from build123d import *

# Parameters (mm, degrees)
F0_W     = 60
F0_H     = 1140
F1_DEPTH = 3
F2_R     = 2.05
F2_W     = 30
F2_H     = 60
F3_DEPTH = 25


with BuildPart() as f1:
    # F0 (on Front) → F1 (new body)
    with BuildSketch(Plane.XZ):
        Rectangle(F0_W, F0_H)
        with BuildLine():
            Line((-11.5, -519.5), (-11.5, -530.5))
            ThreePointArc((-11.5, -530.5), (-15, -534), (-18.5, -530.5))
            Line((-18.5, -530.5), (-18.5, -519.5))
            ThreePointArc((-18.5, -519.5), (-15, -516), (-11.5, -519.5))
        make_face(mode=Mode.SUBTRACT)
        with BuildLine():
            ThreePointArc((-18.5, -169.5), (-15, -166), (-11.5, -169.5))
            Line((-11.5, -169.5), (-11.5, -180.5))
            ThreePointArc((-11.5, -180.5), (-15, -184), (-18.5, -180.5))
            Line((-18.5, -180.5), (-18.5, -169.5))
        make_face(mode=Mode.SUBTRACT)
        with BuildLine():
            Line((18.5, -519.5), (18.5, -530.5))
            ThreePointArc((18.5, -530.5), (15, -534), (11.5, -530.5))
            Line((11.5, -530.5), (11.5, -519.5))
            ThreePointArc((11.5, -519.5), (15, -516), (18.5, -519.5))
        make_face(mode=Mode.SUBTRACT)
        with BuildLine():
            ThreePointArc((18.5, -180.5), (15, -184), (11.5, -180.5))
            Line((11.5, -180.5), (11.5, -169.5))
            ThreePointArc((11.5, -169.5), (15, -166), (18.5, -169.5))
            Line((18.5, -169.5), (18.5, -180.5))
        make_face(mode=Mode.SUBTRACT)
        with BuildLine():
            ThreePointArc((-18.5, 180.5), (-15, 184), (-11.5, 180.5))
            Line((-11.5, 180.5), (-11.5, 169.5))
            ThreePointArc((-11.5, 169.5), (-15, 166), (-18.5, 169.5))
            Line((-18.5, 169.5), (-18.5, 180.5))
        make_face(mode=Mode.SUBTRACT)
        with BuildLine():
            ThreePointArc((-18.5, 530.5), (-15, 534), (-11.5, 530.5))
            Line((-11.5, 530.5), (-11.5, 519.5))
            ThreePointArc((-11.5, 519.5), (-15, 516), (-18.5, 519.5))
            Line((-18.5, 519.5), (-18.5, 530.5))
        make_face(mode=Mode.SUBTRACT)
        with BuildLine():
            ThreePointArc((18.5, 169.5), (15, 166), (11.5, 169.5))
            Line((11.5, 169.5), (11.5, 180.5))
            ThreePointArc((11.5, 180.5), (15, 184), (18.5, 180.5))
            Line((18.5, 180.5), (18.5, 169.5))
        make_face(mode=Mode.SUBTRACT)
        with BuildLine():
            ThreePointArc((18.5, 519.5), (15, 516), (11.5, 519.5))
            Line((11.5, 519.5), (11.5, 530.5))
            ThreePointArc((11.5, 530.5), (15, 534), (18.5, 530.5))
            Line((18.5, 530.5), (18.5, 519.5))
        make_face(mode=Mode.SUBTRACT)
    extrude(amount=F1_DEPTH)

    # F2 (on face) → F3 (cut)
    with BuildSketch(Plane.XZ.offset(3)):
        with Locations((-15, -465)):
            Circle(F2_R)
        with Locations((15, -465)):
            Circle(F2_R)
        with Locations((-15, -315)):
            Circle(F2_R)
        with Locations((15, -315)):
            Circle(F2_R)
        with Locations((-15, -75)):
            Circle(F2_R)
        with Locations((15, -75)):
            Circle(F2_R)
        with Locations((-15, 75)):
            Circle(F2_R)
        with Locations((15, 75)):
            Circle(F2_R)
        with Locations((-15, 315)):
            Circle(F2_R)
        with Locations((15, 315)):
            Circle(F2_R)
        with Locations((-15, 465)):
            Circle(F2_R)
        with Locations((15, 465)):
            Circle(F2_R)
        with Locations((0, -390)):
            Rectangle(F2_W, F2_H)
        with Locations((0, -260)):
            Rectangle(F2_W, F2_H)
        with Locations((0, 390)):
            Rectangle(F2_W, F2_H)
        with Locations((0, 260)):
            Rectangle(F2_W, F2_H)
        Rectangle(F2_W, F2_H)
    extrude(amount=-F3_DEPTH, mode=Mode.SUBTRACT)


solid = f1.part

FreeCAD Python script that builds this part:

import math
import FreeCAD as App
import Part
import Sketcher
from FreeCAD import Vector

doc = App.newDocument("Part")
body = doc.addObject("PartDesign::Body", "Body")

# Sketch on XZ plane
sketch1 = body.newObject("Sketcher::SketchObject", "Sketch")
sketch1.AttachmentSupport = (doc.getObject("XZ_Plane"), [""])
sketch1.MapMode = "FlatFace"
sketch1.addGeometry(Part.LineSegment(Vector(-30, 570, 0), Vector(-30, -570, 0)), False)
sketch1.addGeometry(Part.LineSegment(Vector(-30, -570, 0), Vector(30, -570, 0)), False)
sketch1.addGeometry(Part.LineSegment(Vector(30, -570, 0), Vector(30, 570, 0)), False)
sketch1.addGeometry(Part.LineSegment(Vector(30, 570, 0), Vector(-30, 570, 0)), False)
sketch1.addGeometry(Part.ArcOfCircle(Part.Circle(Vector(-15, -519.5, 0), Vector(0, 0, 1), 3.5), math.radians(0), math.radians(180)), False)
sketch1.addGeometry(Part.LineSegment(Vector(-11.5, -519.5, 0), Vector(-11.5, -530.5, 0)), False)
sketch1.addGeometry(Part.ArcOfCircle(Part.Circle(Vector(-15, -530.5, 0), Vector(0, 0, 1), 3.5), math.radians(180), math.radians(360)), False)
sketch1.addGeometry(Part.LineSegment(Vector(-18.5, -530.5, 0), Vector(-18.5, -519.5, 0)), False)
sketch1.addGeometry(Part.LineSegment(Vector(-18.5, -180.5, 0), Vector(-18.5, -169.5, 0)), False)
sketch1.addGeometry(Part.ArcOfCircle(Part.Circle(Vector(-15, -169.5, 0), Vector(0, 0, 1), 3.5), math.radians(0), math.radians(180)), False)
sketch1.addGeometry(Part.LineSegment(Vector(-11.5, -169.5, 0), Vector(-11.5, -180.5, 0)), False)
sketch1.addGeometry(Part.ArcOfCircle(Part.Circle(Vector(-15, -180.5, 0), Vector(0, 0, 1), 3.5), math.radians(180), math.radians(360)), False)
sketch1.addGeometry(Part.ArcOfCircle(Part.Circle(Vector(15, -519.5, 0), Vector(0, 0, 1), 3.5), math.radians(0), math.radians(180)), False)
sketch1.addGeometry(Part.LineSegment(Vector(18.5, -519.5, 0), Vector(18.5, -530.5, 0)), False)
sketch1.addGeometry(Part.ArcOfCircle(Part.Circle(Vector(15, -530.5, 0), Vector(0, 0, 1), 3.5), math.radians(180), math.radians(360)), False)
sketch1.addGeometry(Part.LineSegment(Vector(11.5, -530.5, 0), Vector(11.5, -519.5, 0)), False)
sketch1.addGeometry(Part.LineSegment(Vector(18.5, -169.5, 0), Vector(18.5, -180.5, 0)), False)
sketch1.addGeometry(Part.ArcOfCircle(Part.Circle(Vector(15, -180.5, 0), Vector(0, 0, 1), 3.5), math.radians(180), math.radians(360)), False)
sketch1.addGeometry(Part.LineSegment(Vector(11.5, -180.5, 0), Vector(11.5, -169.5, 0)), False)
sketch1.addGeometry(Part.ArcOfCircle(Part.Circle(Vector(15, -169.5, 0), Vector(0, 0, 1), 3.5), math.radians(0), math.radians(180)), False)
sketch1.addGeometry(Part.LineSegment(Vector(-18.5, 169.5, 0), Vector(-18.5, 180.5, 0)), False)
sketch1.addGeometry(Part.ArcOfCircle(Part.Circle(Vector(-15, 180.5, 0), Vector(0, 0, 1), 3.5), math.radians(0), math.radians(180)), False)
sketch1.addGeometry(Part.LineSegment(Vector(-11.5, 180.5, 0), Vector(-11.5, 169.5, 0)), False)
sketch1.addGeometry(Part.ArcOfCircle(Part.Circle(Vector(-15, 169.5, 0), Vector(0, 0, 1), 3.5), math.radians(180), math.radians(360)), False)
sketch1.addGeometry(Part.LineSegment(Vector(-18.5, 519.5, 0), Vector(-18.5, 530.5, 0)), False)
sketch1.addGeometry(Part.ArcOfCircle(Part.Circle(Vector(-15, 530.5, 0), Vector(0, 0, 1), 3.5), math.radians(0), math.radians(180)), False)
sketch1.addGeometry(Part.LineSegment(Vector(-11.5, 530.5, 0), Vector(-11.5, 519.5, 0)), False)
sketch1.addGeometry(Part.ArcOfCircle(Part.Circle(Vector(-15, 519.5, 0), Vector(0, 0, 1), 3.5), math.radians(180), math.radians(360)), False)
sketch1.addGeometry(Part.LineSegment(Vector(18.5, 180.5, 0), Vector(18.5, 169.5, 0)), False)
sketch1.addGeometry(Part.ArcOfCircle(Part.Circle(Vector(15, 169.5, 0), Vector(0, 0, 1), 3.5), math.radians(180), math.radians(360)), False)
sketch1.addGeometry(Part.LineSegment(Vector(11.5, 169.5, 0), Vector(11.5, 180.5, 0)), False)
sketch1.addGeometry(Part.ArcOfCircle(Part.Circle(Vector(15, 180.5, 0), Vector(0, 0, 1), 3.5), math.radians(0), math.radians(180)), False)
sketch1.addGeometry(Part.LineSegment(Vector(18.5, 530.5, 0), Vector(18.5, 519.5, 0)), False)
sketch1.addGeometry(Part.ArcOfCircle(Part.Circle(Vector(15, 519.5, 0), Vector(0, 0, 1), 3.5), math.radians(180), math.radians(360)), False)
sketch1.addGeometry(Part.LineSegment(Vector(11.5, 519.5, 0), Vector(11.5, 530.5, 0)), False)
sketch1.addGeometry(Part.ArcOfCircle(Part.Circle(Vector(15, 530.5, 0), Vector(0, 0, 1), 3.5), math.radians(0), math.radians(180)), False)
sketch1.addConstraint(Sketcher.Constraint("Coincident", 0, 2, 1, 1))
sketch1.addConstraint(Sketcher.Constraint("Coincident", 1, 2, 2, 1))
sketch1.addConstraint(Sketcher.Constraint("Coincident", 2, 2, 3, 1))
sketch1.addConstraint(Sketcher.Constraint("Coincident", 3, 2, 0, 1))
sketch1.addConstraint(Sketcher.Constraint("Tangent", 4, 1, 5, 1))
sketch1.addConstraint(Sketcher.Constraint("Tangent", 5, 2, 6, 2))
sketch1.addConstraint(Sketcher.Constraint("Tangent", 6, 1, 7, 1))
sketch1.addConstraint(Sketcher.Constraint("Tangent", 7, 2, 4, 2))
sketch1.addConstraint(Sketcher.Constraint("Tangent", 8, 2, 9, 2))
sketch1.addConstraint(Sketcher.Constraint("Tangent", 9, 1, 10, 1))
sketch1.addConstraint(Sketcher.Constraint("Tangent", 10, 2, 11, 2))
sketch1.addConstraint(Sketcher.Constraint("Tangent", 11, 1, 8, 1))
sketch1.addConstraint(Sketcher.Constraint("Tangent", 12, 1, 13, 1))
sketch1.addConstraint(Sketcher.Constraint("Tangent", 13, 2, 14, 2))
sketch1.addConstraint(Sketcher.Constraint("Tangent", 14, 1, 15, 1))
sketch1.addConstraint(Sketcher.Constraint("Tangent", 15, 2, 12, 2))
sketch1.addConstraint(Sketcher.Constraint("Tangent", 16, 2, 17, 2))
sketch1.addConstraint(Sketcher.Constraint("Tangent", 17, 1, 18, 1))
sketch1.addConstraint(Sketcher.Constraint("Tangent", 18, 2, 19, 2))
sketch1.addConstraint(Sketcher.Constraint("Tangent", 19, 1, 16, 1))
sketch1.addConstraint(Sketcher.Constraint("Tangent", 20, 2, 21, 2))
sketch1.addConstraint(Sketcher.Constraint("Tangent", 21, 1, 22, 1))
sketch1.addConstraint(Sketcher.Constraint("Tangent", 22, 2, 23, 2))
sketch1.addConstraint(Sketcher.Constraint("Tangent", 23, 1, 20, 1))
sketch1.addConstraint(Sketcher.Constraint("Tangent", 24, 2, 25, 2))
sketch1.addConstraint(Sketcher.Constraint("Tangent", 25, 1, 26, 1))
sketch1.addConstraint(Sketcher.Constraint("Tangent", 26, 2, 27, 2))
sketch1.addConstraint(Sketcher.Constraint("Tangent", 27, 1, 24, 1))
sketch1.addConstraint(Sketcher.Constraint("Tangent", 28, 2, 29, 2))
sketch1.addConstraint(Sketcher.Constraint("Tangent", 29, 1, 30, 1))
sketch1.addConstraint(Sketcher.Constraint("Tangent", 30, 2, 31, 2))
sketch1.addConstraint(Sketcher.Constraint("Tangent", 31, 1, 28, 1))
sketch1.addConstraint(Sketcher.Constraint("Tangent", 32, 2, 33, 2))
sketch1.addConstraint(Sketcher.Constraint("Tangent", 33, 1, 34, 1))
sketch1.addConstraint(Sketcher.Constraint("Tangent", 34, 2, 35, 2))
sketch1.addConstraint(Sketcher.Constraint("Tangent", 35, 1, 32, 1))
sketch1.addConstraint(Sketcher.Constraint("Vertical", 0))
sketch1.addConstraint(Sketcher.Constraint("Horizontal", 1))
sketch1.addConstraint(Sketcher.Constraint("Vertical", 2))
sketch1.addConstraint(Sketcher.Constraint("Horizontal", 3))
sketch1.addConstraint(Sketcher.Constraint("Vertical", 5))
sketch1.addConstraint(Sketcher.Constraint("Vertical", 7))
sketch1.addConstraint(Sketcher.Constraint("Vertical", 8))
sketch1.addConstraint(Sketcher.Constraint("Vertical", 10))
sketch1.addConstraint(Sketcher.Constraint("Vertical", 13))
sketch1.addConstraint(Sketcher.Constraint("Vertical", 15))
sketch1.addConstraint(Sketcher.Constraint("Vertical", 16))
sketch1.addConstraint(Sketcher.Constraint("Vertical", 18))
sketch1.addConstraint(Sketcher.Constraint("Vertical", 20))
sketch1.addConstraint(Sketcher.Constraint("Vertical", 22))
sketch1.addConstraint(Sketcher.Constraint("Vertical", 24))
sketch1.addConstraint(Sketcher.Constraint("Vertical", 26))
sketch1.addConstraint(Sketcher.Constraint("Vertical", 28))
sketch1.addConstraint(Sketcher.Constraint("Vertical", 30))
sketch1.addConstraint(Sketcher.Constraint("Vertical", 32))
sketch1.addConstraint(Sketcher.Constraint("Vertical", 34))
sketch1.addConstraint(Sketcher.Constraint("Equal", 6, 9))
sketch1.addConstraint(Sketcher.Constraint("Equal", 11, 12))
sketch1.addConstraint(Sketcher.Constraint("Equal", 14, 17))
sketch1.addConstraint(Sketcher.Constraint("Equal", 19, 21))
sketch1.addConstraint(Sketcher.Constraint("Equal", 23, 25))
sketch1.addConstraint(Sketcher.Constraint("Equal", 27, 29))
sketch1.addConstraint(Sketcher.Constraint("Equal", 31, 33))
sketch1.addConstraint(Sketcher.Constraint("Symmetric", 17, 3, 21, 3, -1, 1))
sketch1.addConstraint(Sketcher.Constraint("Symmetric", 14, 3, 25, 3, -1, 1))
sketch1.addConstraint(Sketcher.Constraint("Symmetric", 9, 3, 29, 3, -1, 1))
sketch1.addConstraint(Sketcher.Constraint("Symmetric", 4, 3, 33, 3, -1, 1))
sketch1.addConstraint(Sketcher.Constraint("Symmetric", 0, 2, 2, 2, -1, 1))
sketch1.addConstraint(Sketcher.Constraint("Symmetric", 4, 3, 12, 3, -2))
sketch1.addConstraint(Sketcher.Constraint("Symmetric", 11, 3, 17, 3, -2))
sketch1.addConstraint(Sketcher.Constraint("Horizontal", 6, 3, 14, 3))
sketch1.addConstraint(Sketcher.Constraint("Horizontal", 9, 3, 19, 3))
sketch1.addConstraint(Sketcher.Constraint("Horizontal", 23, 3, 29, 3))
sketch1.addConstraint(Sketcher.Constraint("Horizontal", 21, 3, 31, 3))
sketch1.addConstraint(Sketcher.Constraint("Horizontal", 27, 3, 33, 3))
sketch1.addConstraint(Sketcher.Constraint("Horizontal", 25, 3, 35, 3))
sketch1.addConstraint(Sketcher.Constraint("Vertical", 6, 3, 9, 3))
sketch1.addConstraint(Sketcher.Constraint("Equal", 7, 8))
sketch1.addConstraint(Sketcher.Constraint("Radius", 4, 3.5))
sketch1.addConstraint(Sketcher.Constraint("DistanceX", 1, 1, 1, 2, 60.0))
sketch1.addConstraint(Sketcher.Constraint("DistanceY", 0, 2, 0, 1, 1140.0))
sketch1.addConstraint(Sketcher.Constraint("DistanceY", 5, 2, 5, 1, 11.0))
sketch1.addConstraint(Sketcher.Constraint("DistanceX", 4, 3, -1, 1, 15.0))
sketch1.addConstraint(Sketcher.Constraint("DistanceY", 4, 3, 9, 3, 350.0))
sketch1.addConstraint(Sketcher.Constraint("DistanceY", 9, 3, 21, 3, 350.0))
pad1 = body.newObject("PartDesign::Pad", "Pad")
pad1.Profile = sketch1
pad1.Length = 3

# Sketch on XZ plane
sketch2 = body.newObject("Sketcher::SketchObject", "Sketch001")
sketch2.AttachmentSupport = (doc.getObject("XZ_Plane"), [""])
sketch2.MapMode = "FlatFace"
sketch2.AttachmentOffset = App.Placement(Vector(0, 0, 3), App.Rotation())
sketch2.addGeometry(Part.Circle(Vector(-15, -465, 0), Vector(0, 0, 1), 2), False)
sketch2.addGeometry(Part.Circle(Vector(15, -465, 0), Vector(0, 0, 1), 2), False)
sketch2.addGeometry(Part.Circle(Vector(-15, -315, 0), Vector(0, 0, 1), 2), False)
sketch2.addGeometry(Part.Circle(Vector(15, -315, 0), Vector(0, 0, 1), 2), False)
sketch2.addGeometry(Part.Circle(Vector(-15, -75, 0), Vector(0, 0, 1), 2), False)
sketch2.addGeometry(Part.Circle(Vector(15, -75, 0), Vector(0, 0, 1), 2), False)
sketch2.addGeometry(Part.Circle(Vector(-15, 75, 0), Vector(0, 0, 1), 2), False)
sketch2.addGeometry(Part.Circle(Vector(15, 75, 0), Vector(0, 0, 1), 2), False)
sketch2.addGeometry(Part.Circle(Vector(-15, 315, 0), Vector(0, 0, 1), 2), False)
sketch2.addGeometry(Part.Circle(Vector(15, 315, 0), Vector(0, 0, 1), 2), False)
sketch2.addGeometry(Part.Circle(Vector(-15, 465, 0), Vector(0, 0, 1), 2), False)
sketch2.addGeometry(Part.Circle(Vector(15, 465, 0), Vector(0, 0, 1), 2), False)
sketch2.addGeometry(Part.LineSegment(Vector(-15, -360, 0), Vector(-15, -420, 0)), False)
sketch2.addGeometry(Part.LineSegment(Vector(-15, -420, 0), Vector(15, -420, 0)), False)
sketch2.addGeometry(Part.LineSegment(Vector(15, -420, 0), Vector(15, -360, 0)), False)
sketch2.addGeometry(Part.LineSegment(Vector(15, -360, 0), Vector(-15, -360, 0)), False)
sketch2.addGeometry(Part.LineSegment(Vector(-15, -230, 0), Vector(-15, -290, 0)), False)
sketch2.addGeometry(Part.LineSegment(Vector(-15, -290, 0), Vector(15, -290, 0)), False)
sketch2.addGeometry(Part.LineSegment(Vector(15, -290, 0), Vector(15, -230, 0)), False)
sketch2.addGeometry(Part.LineSegment(Vector(15, -230, 0), Vector(-15, -230, 0)), False)
sketch2.addGeometry(Part.LineSegment(Vector(-15, 420, 0), Vector(-15, 360, 0)), False)
sketch2.addGeometry(Part.LineSegment(Vector(-15, 360, 0), Vector(15, 360, 0)), False)
sketch2.addGeometry(Part.LineSegment(Vector(15, 360, 0), Vector(15, 420, 0)), False)
sketch2.addGeometry(Part.LineSegment(Vector(15, 420, 0), Vector(-15, 420, 0)), False)
sketch2.addGeometry(Part.LineSegment(Vector(-15, 290, 0), Vector(-15, 230, 0)), False)
sketch2.addGeometry(Part.LineSegment(Vector(-15, 230, 0), Vector(15, 230, 0)), False)
sketch2.addGeometry(Part.LineSegment(Vector(15, 230, 0), Vector(15, 290, 0)), False)
sketch2.addGeometry(Part.LineSegment(Vector(15, 290, 0), Vector(-15, 290, 0)), False)
sketch2.addGeometry(Part.LineSegment(Vector(-15, 30, 0), Vector(-15, -30, 0)), False)
sketch2.addGeometry(Part.LineSegment(Vector(-15, -30, 0), Vector(15, -30, 0)), False)
sketch2.addGeometry(Part.LineSegment(Vector(15, -30, 0), Vector(15, 30, 0)), False)
sketch2.addGeometry(Part.LineSegment(Vector(15, 30, 0), Vector(-15, 30, 0)), False)
sketch2.addConstraint(Sketcher.Constraint("Coincident", 12, 2, 13, 1))
sketch2.addConstraint(Sketcher.Constraint("Coincident", 13, 2, 14, 1))
sketch2.addConstraint(Sketcher.Constraint("Coincident", 14, 2, 15, 1))
sketch2.addConstraint(Sketcher.Constraint("Coincident", 15, 2, 12, 1))
sketch2.addConstraint(Sketcher.Constraint("Coincident", 16, 2, 17, 1))
sketch2.addConstraint(Sketcher.Constraint("Coincident", 17, 2, 18, 1))
sketch2.addConstraint(Sketcher.Constraint("Coincident", 18, 2, 19, 1))
sketch2.addConstraint(Sketcher.Constraint("Coincident", 19, 2, 16, 1))
sketch2.addConstraint(Sketcher.Constraint("Coincident", 20, 2, 21, 1))
sketch2.addConstraint(Sketcher.Constraint("Coincident", 21, 2, 22, 1))
sketch2.addConstraint(Sketcher.Constraint("Coincident", 22, 2, 23, 1))
sketch2.addConstraint(Sketcher.Constraint("Coincident", 23, 2, 20, 1))
sketch2.addConstraint(Sketcher.Constraint("Coincident", 24, 2, 25, 1))
sketch2.addConstraint(Sketcher.Constraint("Coincident", 25, 2, 26, 1))
sketch2.addConstraint(Sketcher.Constraint("Coincident", 26, 2, 27, 1))
sketch2.addConstraint(Sketcher.Constraint("Coincident", 27, 2, 24, 1))
sketch2.addConstraint(Sketcher.Constraint("Coincident", 28, 2, 29, 1))
sketch2.addConstraint(Sketcher.Constraint("Coincident", 29, 2, 30, 1))
sketch2.addConstraint(Sketcher.Constraint("Coincident", 30, 2, 31, 1))
sketch2.addConstraint(Sketcher.Constraint("Coincident", 31, 2, 28, 1))
sketch2.addConstraint(Sketcher.Constraint("Vertical", 12))
sketch2.addConstraint(Sketcher.Constraint("Horizontal", 13))
sketch2.addConstraint(Sketcher.Constraint("Vertical", 14))
sketch2.addConstraint(Sketcher.Constraint("Horizontal", 15))
sketch2.addConstraint(Sketcher.Constraint("Vertical", 16))
sketch2.addConstraint(Sketcher.Constraint("Horizontal", 17))
sketch2.addConstraint(Sketcher.Constraint("Vertical", 18))
sketch2.addConstraint(Sketcher.Constraint("Horizontal", 19))
sketch2.addConstraint(Sketcher.Constraint("Vertical", 20))
sketch2.addConstraint(Sketcher.Constraint("Horizontal", 21))
sketch2.addConstraint(Sketcher.Constraint("Vertical", 22))
sketch2.addConstraint(Sketcher.Constraint("Horizontal", 23))
sketch2.addConstraint(Sketcher.Constraint("Vertical", 24))
sketch2.addConstraint(Sketcher.Constraint("Horizontal", 25))
sketch2.addConstraint(Sketcher.Constraint("Vertical", 26))
sketch2.addConstraint(Sketcher.Constraint("Horizontal", 27))
sketch2.addConstraint(Sketcher.Constraint("Vertical", 28))
sketch2.addConstraint(Sketcher.Constraint("Horizontal", 29))
sketch2.addConstraint(Sketcher.Constraint("Vertical", 30))
sketch2.addConstraint(Sketcher.Constraint("Horizontal", 31))
sketch2.addConstraint(Sketcher.Constraint("Equal", 0, 1))
sketch2.addConstraint(Sketcher.Constraint("Equal", 1, 2))
sketch2.addConstraint(Sketcher.Constraint("Equal", 2, 3))
sketch2.addConstraint(Sketcher.Constraint("Equal", 3, 4))
sketch2.addConstraint(Sketcher.Constraint("Equal", 4, 5))
sketch2.addConstraint(Sketcher.Constraint("Equal", 5, 6))
sketch2.addConstraint(Sketcher.Constraint("Equal", 6, 7))
sketch2.addConstraint(Sketcher.Constraint("Equal", 7, 8))
sketch2.addConstraint(Sketcher.Constraint("Equal", 8, 9))
sketch2.addConstraint(Sketcher.Constraint("Equal", 9, 10))
sketch2.addConstraint(Sketcher.Constraint("Equal", 10, 11))
sketch2.addConstraint(Sketcher.Constraint("Symmetric", 5, 3, 6, 3, -1, 1))
sketch2.addConstraint(Sketcher.Constraint("Symmetric", 4, 3, 7, 3, -1, 1))
sketch2.addConstraint(Sketcher.Constraint("Symmetric", 3, 3, 8, 3, -1, 1))
sketch2.addConstraint(Sketcher.Constraint("Symmetric", 2, 3, 9, 3, -1, 1))
sketch2.addConstraint(Sketcher.Constraint("Symmetric", 1, 3, 10, 3, -1, 1))
sketch2.addConstraint(Sketcher.Constraint("Symmetric", 0, 3, 11, 3, -1, 1))
sketch2.addConstraint(Sketcher.Constraint("Symmetric", 14, 2, 20, 2, -1, 1))
sketch2.addConstraint(Sketcher.Constraint("Symmetric", 12, 2, 22, 2, -1, 1))
sketch2.addConstraint(Sketcher.Constraint("Symmetric", 18, 2, 24, 2, -1, 1))
sketch2.addConstraint(Sketcher.Constraint("Symmetric", 16, 2, 26, 2, -1, 1))
sketch2.addConstraint(Sketcher.Constraint("Symmetric", 28, 2, 30, 2, -1, 1))
sketch2.addConstraint(Sketcher.Constraint("Symmetric", 0, 3, 1, 3, -2))
sketch2.addConstraint(Sketcher.Constraint("Symmetric", 2, 3, 3, 3, -2))
sketch2.addConstraint(Sketcher.Constraint("Symmetric", 4, 3, 5, 3, -2))
sketch2.addConstraint(Sketcher.Constraint("Vertical", 0, 3, 2, 3))
sketch2.addConstraint(Sketcher.Constraint("Vertical", 2, 3, 4, 3))
sketch2.addConstraint(Sketcher.Constraint("Vertical", 10, 3, 12, 2))
sketch2.addConstraint(Sketcher.Constraint("Vertical", 11, 3, 13, 2))
sketch2.addConstraint(Sketcher.Constraint("Vertical", 15, 2, 16, 2))
sketch2.addConstraint(Sketcher.Constraint("Vertical", 14, 2, 17, 2))
sketch2.addConstraint(Sketcher.Constraint("Vertical", 27, 2, 28, 2))
sketch2.addConstraint(Sketcher.Constraint("Equal", 14, 16))
sketch2.addConstraint(Sketcher.Constraint("Equal", 26, 28))
sketch2.addConstraint(Sketcher.Constraint("Diameter", 0, 4.1))
sketch2.addConstraint(Sketcher.Constraint("DistanceX", 13, 1, 13, 2, 30.0))
sketch2.addConstraint(Sketcher.Constraint("DistanceY", 12, 2, 12, 1, 60.0))
sketch2.addConstraint(Sketcher.Constraint("DistanceY", 0, 3, -1, 1, 465.0))
sketch2.addConstraint(Sketcher.Constraint("DistanceY", 2, 3, -1, 1, 315.0))
sketch2.addConstraint(Sketcher.Constraint("DistanceY", 4, 3, -1, 1, 75.0))
sketch2.addConstraint(Sketcher.Constraint("DistanceY", 12, 2, -1, 1, 420.0))
sketch2.addConstraint(Sketcher.Constraint("DistanceY", 16, 2, -1, 1, 290.0))
pocket1 = body.newObject("PartDesign::Pocket", "Pocket")
pocket1.Profile = sketch2
pocket1.Length = 25

doc.recompute()
